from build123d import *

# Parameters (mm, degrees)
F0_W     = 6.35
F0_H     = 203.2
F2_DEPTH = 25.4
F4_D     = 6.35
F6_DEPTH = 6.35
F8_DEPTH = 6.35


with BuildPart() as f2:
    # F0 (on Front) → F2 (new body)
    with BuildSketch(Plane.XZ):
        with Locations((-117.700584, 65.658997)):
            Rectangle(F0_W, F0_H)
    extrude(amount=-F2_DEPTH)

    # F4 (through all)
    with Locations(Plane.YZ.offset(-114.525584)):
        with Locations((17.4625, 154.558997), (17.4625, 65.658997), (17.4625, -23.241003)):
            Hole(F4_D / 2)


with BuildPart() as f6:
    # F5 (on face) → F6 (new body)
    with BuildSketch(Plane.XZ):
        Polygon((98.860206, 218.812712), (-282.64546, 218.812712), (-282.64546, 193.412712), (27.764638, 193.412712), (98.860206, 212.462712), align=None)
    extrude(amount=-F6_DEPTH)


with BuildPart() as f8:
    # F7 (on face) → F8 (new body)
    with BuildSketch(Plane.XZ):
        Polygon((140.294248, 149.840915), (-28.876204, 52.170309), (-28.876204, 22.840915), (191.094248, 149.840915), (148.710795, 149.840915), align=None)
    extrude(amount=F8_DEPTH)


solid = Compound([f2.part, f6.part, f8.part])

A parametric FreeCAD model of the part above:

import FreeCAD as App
import Part
import Sketcher
Q = App.Units.Quantity


def add_polygon(sketch, points):
    """Adds a closed chain of lines whose ends are joined by coincident constraints."""
    first, n = sketch.GeometryCount, len(points)
    for a, b in zip(points, points[1:] + points[:1]):
        sketch.addGeometry(Part.LineSegment(App.Vector(*a, 0), App.Vector(*b, 0)), False)
    for i in range(n):
        sketch.addConstraint(Sketcher.Constraint("Coincident", first + i, 2, first + (i + 1) % n, 1))

doc = App.newDocument("Part")
body = doc.addObject("PartDesign::Body", "Body")

# Sketch on XZ plane
sketch1 = body.newObject("Sketcher::SketchObject", "Sketch")
sketch1.AttachmentSupport = (doc.getObject("XZ_Plane"), [""])
sketch1.MapMode = "FlatFace"
add_polygon(sketch1, [(-121, 167), (-121, -36), (-115, -36), (-115, 167)])  # lines 0-3
sketch1.addConstraint(Sketcher.Constraint("Vertical", 0))
sketch1.addConstraint(Sketcher.Constraint("Horizontal", 1))
sketch1.addConstraint(Sketcher.Constraint("Vertical", 2))
sketch1.addConstraint(Sketcher.Constraint("Horizontal", 3))
sketch1.addConstraint(Sketcher.Constraint("DistanceY", 0, 2, 0, 1, Q("8 in")))
sketch1.addConstraint(Sketcher.Constraint("DistanceX", 1, 1, 1, 2, Q("0.25 in")))
sketch1.addConstraint(Sketcher.Constraint("DistanceY", 0, 2, -1, 1, Q("1.4150001 in")))
sketch1.addConstraint(Sketcher.Constraint("DistanceX", 0, 2, -1, 1, Q("120.875584 mm")))
pad1 = body.newObject("PartDesign::Pad", "Pad")
pad1.Profile = sketch1
pad1.Length = Q("1 in")
pad1.Reversed = True

# Sketch on YZ plane
sketch2 = body.newObject("Sketcher::SketchObject", "Sketch001")
sketch2.AttachmentSupport = (doc.getObject("YZ_Plane"), [""])
sketch2.MapMode = "FlatFace"
sketch2.AttachmentOffset = App.Placement(App.Vector(0, 0, -114.525584), App.Rotation())
sketch2.addGeometry(Part.Circle(App.Vector(17.5, 154.6, 0), App.Vector(0, 0, 1), 3.2), False)
sketch2.addGeometry(Part.Circle(App.Vector(17.5, 65.7, 0), App.Vector(0, 0, 1), 3.2), False)
sketch2.addGeometry(Part.Circle(App.Vector(17.5, -23.2, 0), App.Vector(0, 0, 1), 3.2), False)
sketch2.addConstraint(Sketcher.Constraint("Equal", 0, 1))
sketch2.addConstraint(Sketcher.Constraint("Equal", 1, 2))
sketch2.addConstraint(Sketcher.Constraint("Vertical", 0, 3, 1, 3))
sketch2.addConstraint(Sketcher.Constraint("Vertical", 1, 3, 2, 3))
sketch2.addConstraint(Sketcher.Constraint("Diameter", 0, Q("0.25 in")))
sketch2.addConstraint(Sketcher.Constraint("DistanceY", 2, 3, 0, 3, Q("7 in")))
sketch2.addConstraint(Sketcher.Constraint("DistanceY", 1, 3, 0, 3, Q("3.5 in")))
sketch2.addConstraint(Sketcher.Constraint("DistanceX", -1, 1, 0, 3, Q("0.6875 in")))
sketch2.addConstraint(Sketcher.Constraint("DistanceY", -1, 1, 0, 3, Q("6.0849999 in")))
doc.recompute()
hole = body.newObject("PartDesign::Hole", "Hole")
hole.Profile = sketch2
hole.ThreadType = "None"
hole.Diameter = Q("0.25 in")
hole.DepthType = "ThroughAll"
body2 = doc.addObject("PartDesign::Body", "Body001")

# Sketch on XZ plane
sketch3 = body2.newObject("Sketcher::SketchObject", "Sketch002")
sketch3.AttachmentSupport = (doc.getObject("XZ_Plane001"), [""])
sketch3.MapMode = "FlatFace"
add_polygon(sketch3, [(99, 219), (-283, 219), (-283, 193), (28, 193), (99, 212)])  # lines 0-4
sketch3.addConstraint(Sketcher.Constraint("Horizontal", 0))
sketch3.addConstraint(Sketcher.Constraint("Vertical", 1))
sketch3.addConstraint(Sketcher.Constraint("Horizontal", 2))
sketch3.addConstraint(Sketcher.Constraint("Vertical", 4))
sketch3.addConstraint(Sketcher.Constraint("DistanceY", 1, 2, 1, 1, Q("1 in")))
sketch3.addConstraint(Sketcher.Constraint("Angle", 3, Q("15 deg")))
sketch3.addConstraint(Sketcher.Constraint("DistanceY", 4, 1, 4, 2, Q("0.25 in")))
sketch3.addConstraint(Sketcher.Constraint("DistanceX", 2, 1, 2, 2, Q("310.410098 mm")))
sketch3.addConstraint(Sketcher.Constraint("DistanceX", 0, 2, -1, 1, Q("282.64546 mm")))
sketch3.addConstraint(Sketcher.Constraint("DistanceY", -1, 1, 0, 2, Q("218.812712 mm")))
pad2 = body2.newObject("PartDesign::Pad", "Pad001")
pad2.Profile = sketch3
pad2.Length = Q("0.25 in")
pad2.Reversed = True
body3 = doc.addObject("PartDesign::Body", "Body002")

# Sketch on XZ plane
sketch4 = body3.newObject("Sketcher::SketchObject", "Sketch003")
sketch4.AttachmentSupport = (doc.getObject("XZ_Plane002"), [""])
sketch4.MapMode = "FlatFace"
add_polygon(sketch4, [(140, 150), (-29, 52), (-29, 23), (191, 150)])  # lines 0-3
sketch4.addConstraint(Sketcher.Constraint("Vertical", 1))
sketch4.addConstraint(Sketcher.Constraint("Horizontal", 3))
sketch4.addConstraint(Sketcher.Constraint("Parallel", 0, 2))
sketch4.addConstraint(Sketcher.Constraint("DistanceX", 3, 2, 3, 1, Q("2 in")))
sketch4.addConstraint(Sketcher.Constraint("Distance", 2, Q("10 in")))
sketch4.addConstraint(Sketcher.Constraint("Angle", 0, Q("-150 deg")))
sketch4.addConstraint(Sketcher.Constraint("DistanceY", -1, 1, 0, 2, Q("52.170309 mm")))
sketch4.addConstraint(Sketcher.Constraint("DistanceX", -1, 1, 2, 2, Q("191.094248 mm")))
pad3 = body3.newObject("PartDesign::Pad", "Pad002")
pad3.Profile = sketch4
pad3.Length = Q("0.25 in")

doc.recompute()
